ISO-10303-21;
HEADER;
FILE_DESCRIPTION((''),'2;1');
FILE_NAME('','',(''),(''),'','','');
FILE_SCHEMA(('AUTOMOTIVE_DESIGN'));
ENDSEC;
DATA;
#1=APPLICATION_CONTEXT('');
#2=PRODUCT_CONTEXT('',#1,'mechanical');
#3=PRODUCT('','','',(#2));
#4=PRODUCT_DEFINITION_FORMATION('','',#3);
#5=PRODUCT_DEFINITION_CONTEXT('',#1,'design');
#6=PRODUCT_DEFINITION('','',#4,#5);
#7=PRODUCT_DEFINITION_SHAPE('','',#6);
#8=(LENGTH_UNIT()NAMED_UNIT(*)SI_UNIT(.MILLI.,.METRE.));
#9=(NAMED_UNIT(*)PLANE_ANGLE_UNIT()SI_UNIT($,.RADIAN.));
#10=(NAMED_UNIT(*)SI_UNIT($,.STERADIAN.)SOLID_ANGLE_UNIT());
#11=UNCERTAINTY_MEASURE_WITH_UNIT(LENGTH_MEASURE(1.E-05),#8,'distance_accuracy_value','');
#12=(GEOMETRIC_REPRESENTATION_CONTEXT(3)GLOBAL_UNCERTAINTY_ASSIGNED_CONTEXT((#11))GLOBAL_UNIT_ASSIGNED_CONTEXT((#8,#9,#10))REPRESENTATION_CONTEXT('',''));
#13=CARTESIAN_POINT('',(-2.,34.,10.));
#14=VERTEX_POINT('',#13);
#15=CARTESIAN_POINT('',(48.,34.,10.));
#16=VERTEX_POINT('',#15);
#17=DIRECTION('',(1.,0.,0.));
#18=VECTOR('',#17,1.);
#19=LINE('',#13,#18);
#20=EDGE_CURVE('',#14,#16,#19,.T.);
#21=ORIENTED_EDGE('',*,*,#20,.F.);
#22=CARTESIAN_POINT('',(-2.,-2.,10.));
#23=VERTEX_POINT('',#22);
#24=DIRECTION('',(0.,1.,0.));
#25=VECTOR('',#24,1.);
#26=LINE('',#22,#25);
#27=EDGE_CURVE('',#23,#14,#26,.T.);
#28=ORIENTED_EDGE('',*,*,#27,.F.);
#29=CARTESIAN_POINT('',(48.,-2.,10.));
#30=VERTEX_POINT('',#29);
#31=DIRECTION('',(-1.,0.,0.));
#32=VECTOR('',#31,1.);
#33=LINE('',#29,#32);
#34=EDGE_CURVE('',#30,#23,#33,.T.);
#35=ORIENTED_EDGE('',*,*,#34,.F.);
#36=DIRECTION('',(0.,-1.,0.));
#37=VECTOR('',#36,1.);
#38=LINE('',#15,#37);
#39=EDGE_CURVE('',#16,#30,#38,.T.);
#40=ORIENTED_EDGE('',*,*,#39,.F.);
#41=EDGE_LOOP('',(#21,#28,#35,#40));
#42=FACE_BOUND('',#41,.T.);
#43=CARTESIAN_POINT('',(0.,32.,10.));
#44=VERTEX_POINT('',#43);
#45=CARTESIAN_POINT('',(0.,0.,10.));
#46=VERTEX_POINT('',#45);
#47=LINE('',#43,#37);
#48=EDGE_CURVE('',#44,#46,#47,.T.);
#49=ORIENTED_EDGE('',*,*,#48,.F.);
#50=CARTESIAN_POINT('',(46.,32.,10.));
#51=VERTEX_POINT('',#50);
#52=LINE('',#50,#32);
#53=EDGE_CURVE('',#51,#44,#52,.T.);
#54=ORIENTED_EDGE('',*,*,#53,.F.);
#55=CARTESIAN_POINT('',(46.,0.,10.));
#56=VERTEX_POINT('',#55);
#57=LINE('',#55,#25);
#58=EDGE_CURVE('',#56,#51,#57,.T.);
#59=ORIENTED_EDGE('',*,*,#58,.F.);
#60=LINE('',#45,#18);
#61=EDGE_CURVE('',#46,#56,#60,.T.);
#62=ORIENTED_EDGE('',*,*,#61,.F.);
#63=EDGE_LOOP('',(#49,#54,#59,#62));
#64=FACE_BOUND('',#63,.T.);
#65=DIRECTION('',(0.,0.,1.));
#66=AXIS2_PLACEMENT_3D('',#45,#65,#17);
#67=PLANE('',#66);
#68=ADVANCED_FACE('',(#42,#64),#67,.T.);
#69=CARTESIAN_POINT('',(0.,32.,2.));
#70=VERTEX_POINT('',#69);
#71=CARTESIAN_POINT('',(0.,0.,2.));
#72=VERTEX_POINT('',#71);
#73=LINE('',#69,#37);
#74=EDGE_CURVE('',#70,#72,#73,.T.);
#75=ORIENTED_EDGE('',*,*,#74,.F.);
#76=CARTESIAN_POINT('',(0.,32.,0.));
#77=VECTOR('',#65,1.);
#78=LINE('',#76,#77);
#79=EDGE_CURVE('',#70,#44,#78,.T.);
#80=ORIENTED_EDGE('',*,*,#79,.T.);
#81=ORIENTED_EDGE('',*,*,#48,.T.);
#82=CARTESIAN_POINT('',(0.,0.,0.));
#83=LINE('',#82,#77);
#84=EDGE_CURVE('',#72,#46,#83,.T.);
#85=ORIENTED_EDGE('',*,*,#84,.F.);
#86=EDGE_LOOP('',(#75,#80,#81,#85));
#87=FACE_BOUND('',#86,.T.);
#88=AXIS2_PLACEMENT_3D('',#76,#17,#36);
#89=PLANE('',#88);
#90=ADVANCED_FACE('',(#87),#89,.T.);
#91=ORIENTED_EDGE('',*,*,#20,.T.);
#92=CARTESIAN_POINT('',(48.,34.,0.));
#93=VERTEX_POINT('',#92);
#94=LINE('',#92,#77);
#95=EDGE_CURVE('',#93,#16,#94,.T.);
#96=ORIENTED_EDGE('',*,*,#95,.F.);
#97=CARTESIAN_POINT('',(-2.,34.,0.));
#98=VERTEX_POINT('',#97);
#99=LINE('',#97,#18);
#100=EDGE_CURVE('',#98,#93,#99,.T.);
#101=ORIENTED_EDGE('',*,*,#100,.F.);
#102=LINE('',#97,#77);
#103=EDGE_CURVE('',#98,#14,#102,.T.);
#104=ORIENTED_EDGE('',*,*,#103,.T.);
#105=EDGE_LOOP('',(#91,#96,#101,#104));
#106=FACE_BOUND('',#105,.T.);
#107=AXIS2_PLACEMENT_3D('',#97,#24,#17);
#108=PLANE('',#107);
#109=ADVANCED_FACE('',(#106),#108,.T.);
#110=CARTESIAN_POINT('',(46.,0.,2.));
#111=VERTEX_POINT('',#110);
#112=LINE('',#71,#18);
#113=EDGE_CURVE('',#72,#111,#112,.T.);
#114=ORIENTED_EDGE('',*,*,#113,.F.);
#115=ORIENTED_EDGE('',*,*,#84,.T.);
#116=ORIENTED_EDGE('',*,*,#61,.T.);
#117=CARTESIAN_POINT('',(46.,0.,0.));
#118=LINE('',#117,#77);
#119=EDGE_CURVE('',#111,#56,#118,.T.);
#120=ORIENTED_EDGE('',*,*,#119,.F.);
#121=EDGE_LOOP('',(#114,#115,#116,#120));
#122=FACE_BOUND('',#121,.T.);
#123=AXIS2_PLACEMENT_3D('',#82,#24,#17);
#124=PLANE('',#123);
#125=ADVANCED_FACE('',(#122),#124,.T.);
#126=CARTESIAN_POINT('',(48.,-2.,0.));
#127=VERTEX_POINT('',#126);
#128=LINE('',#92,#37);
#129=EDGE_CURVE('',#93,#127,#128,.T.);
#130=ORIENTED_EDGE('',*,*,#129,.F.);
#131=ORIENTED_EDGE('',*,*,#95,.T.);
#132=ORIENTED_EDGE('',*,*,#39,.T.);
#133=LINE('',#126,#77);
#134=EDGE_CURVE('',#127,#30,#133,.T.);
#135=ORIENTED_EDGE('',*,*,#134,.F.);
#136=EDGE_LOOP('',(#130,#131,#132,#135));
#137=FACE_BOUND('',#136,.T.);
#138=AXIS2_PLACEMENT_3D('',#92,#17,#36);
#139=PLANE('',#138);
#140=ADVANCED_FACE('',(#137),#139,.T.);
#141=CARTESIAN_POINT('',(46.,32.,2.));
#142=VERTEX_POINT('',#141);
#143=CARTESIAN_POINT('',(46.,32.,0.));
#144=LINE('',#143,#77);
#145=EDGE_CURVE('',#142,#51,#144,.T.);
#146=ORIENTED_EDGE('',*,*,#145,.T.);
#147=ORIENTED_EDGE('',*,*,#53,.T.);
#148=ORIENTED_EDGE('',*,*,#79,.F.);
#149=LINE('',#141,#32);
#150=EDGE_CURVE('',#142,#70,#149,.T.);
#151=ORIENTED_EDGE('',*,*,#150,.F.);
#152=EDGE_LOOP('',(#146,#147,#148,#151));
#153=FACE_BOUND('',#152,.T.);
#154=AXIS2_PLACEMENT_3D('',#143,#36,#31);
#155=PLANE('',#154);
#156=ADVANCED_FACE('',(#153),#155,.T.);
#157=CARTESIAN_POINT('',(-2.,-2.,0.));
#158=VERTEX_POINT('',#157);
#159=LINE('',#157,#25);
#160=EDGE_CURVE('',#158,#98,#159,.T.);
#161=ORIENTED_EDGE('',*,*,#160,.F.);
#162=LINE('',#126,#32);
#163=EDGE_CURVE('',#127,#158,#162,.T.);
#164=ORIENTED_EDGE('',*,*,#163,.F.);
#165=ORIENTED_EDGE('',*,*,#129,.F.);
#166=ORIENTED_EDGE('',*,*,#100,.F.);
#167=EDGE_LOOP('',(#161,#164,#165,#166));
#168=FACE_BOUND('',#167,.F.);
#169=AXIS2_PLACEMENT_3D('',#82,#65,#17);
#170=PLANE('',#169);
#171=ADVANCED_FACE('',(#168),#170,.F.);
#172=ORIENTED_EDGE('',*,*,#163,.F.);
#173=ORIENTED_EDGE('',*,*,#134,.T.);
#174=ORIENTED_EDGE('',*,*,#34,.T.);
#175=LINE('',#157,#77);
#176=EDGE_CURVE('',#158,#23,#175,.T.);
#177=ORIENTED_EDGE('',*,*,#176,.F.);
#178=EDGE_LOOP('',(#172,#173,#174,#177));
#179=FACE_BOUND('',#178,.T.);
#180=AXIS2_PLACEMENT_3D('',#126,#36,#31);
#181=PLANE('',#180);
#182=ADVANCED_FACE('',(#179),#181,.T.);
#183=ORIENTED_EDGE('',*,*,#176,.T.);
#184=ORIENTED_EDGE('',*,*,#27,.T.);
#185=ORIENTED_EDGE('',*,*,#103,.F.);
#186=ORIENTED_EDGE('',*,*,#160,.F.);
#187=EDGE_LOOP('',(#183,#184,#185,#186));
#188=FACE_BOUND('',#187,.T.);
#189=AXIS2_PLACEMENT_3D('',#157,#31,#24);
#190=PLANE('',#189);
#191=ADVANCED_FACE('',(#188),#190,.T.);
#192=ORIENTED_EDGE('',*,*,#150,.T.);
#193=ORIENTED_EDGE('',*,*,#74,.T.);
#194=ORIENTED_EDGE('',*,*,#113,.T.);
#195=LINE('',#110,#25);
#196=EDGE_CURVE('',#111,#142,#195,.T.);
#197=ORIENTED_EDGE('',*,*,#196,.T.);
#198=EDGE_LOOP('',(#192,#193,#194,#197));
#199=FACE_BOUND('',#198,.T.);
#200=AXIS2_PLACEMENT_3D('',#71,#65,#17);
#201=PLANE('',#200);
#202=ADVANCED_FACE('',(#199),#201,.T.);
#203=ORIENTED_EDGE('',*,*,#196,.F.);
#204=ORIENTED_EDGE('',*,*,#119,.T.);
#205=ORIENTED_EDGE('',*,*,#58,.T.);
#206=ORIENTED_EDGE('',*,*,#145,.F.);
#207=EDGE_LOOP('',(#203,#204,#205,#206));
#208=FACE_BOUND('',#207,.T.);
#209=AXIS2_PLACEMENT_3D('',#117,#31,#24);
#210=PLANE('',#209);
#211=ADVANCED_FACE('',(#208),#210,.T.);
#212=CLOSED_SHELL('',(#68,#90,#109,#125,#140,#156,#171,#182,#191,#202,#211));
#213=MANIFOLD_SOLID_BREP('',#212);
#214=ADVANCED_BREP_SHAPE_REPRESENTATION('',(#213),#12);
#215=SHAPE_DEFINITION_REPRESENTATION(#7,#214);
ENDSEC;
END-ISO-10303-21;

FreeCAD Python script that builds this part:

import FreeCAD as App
import Part
import Sketcher

V = App.Vector


def add_polygon(sketch, points):
    """Adds a closed chain of lines whose ends are joined by coincident constraints."""
    first, n = sketch.GeometryCount, len(points)
    for a, b in zip(points, points[1:] + points[:1]):
        sketch.addGeometry(Part.LineSegment(App.Vector(*a, 0), App.Vector(*b, 0)), False)
    for i in range(n):
        sketch.addConstraint(Sketcher.Constraint("Coincident", first + i, 2, first + (i + 1) % n, 1))

doc = App.newDocument("Part")
params = doc.addObject("Spreadsheet::Sheet", "Params")
for row, (alias, value) in enumerate([
    ("sketch1_width", "46 mm"),
    ("sketch1_height", "32 mm"),
    ("pad1_length", "2 mm"),
    ("sketch2_width", "46 mm"),
    ("sketch2_height", "32 mm"),
    ("pad2_length", "10 mm"),
], start=1):
    params.set(f"A{row}", alias)
    params.set(f"B{row}", "=" + value)
    params.setAlias(f"B{row}", alias)

body = doc.addObject("PartDesign::Body", "Body")

# Sketch on XY plane
sketch1 = doc.addObject("Sketcher::SketchObject", "Sketch")
body.addObject(sketch1)
sketch1.AttachmentSupport = (doc.XY_Plane, [""])
sketch1.MapMode = "FlatFace"
add_polygon(sketch1, [(0, 32), (0, 0), (46, 0), (46, 32)])  # lines 0-3
sketch1.addConstraint([
    Sketcher.Constraint("Vertical", 0),
    Sketcher.Constraint("Horizontal", 1),
    Sketcher.Constraint("Vertical", 2),
    Sketcher.Constraint("Horizontal", 3),
    Sketcher.Constraint("Coincident", 0, 2, -1, 1),
    Sketcher.Constraint("DistanceX", 1, 1, 1, 2, 46.0),
    Sketcher.Constraint("DistanceY", 0, 2, 0, 1, 32.0),
])
sketch1.setExpression("Constraints[9]", "Params.sketch1_width")
sketch1.setExpression("Constraints[10]", "Params.sketch1_height")
pad1 = doc.addObject("PartDesign::Pad", "Pad")
body.addObject(pad1)
pad1.Profile = sketch1
pad1.setExpression("Length", "Params.pad1_length")

# Sketch on XY plane
sketch2 = doc.addObject("Sketcher::SketchObject", "Sketch001")
body.addObject(sketch2)
sketch2.AttachmentSupport = (doc.XY_Plane, [""])
sketch2.MapMode = "FlatFace"
add_polygon(sketch2, [(48, 34), (-2, 34), (-2, -2), (48, -2)])  # lines 0-3
add_polygon(sketch2, [(46, 0), (0, 0), (0, 32), (46, 32)])  # lines 4-7
sketch2.addConstraint([
    Sketcher.Constraint("Horizontal", 0),
    Sketcher.Constraint("Vertical", 1),
    Sketcher.Constraint("Horizontal", 2),
    Sketcher.Constraint("Vertical", 3),
    Sketcher.Constraint("Horizontal", 4),
    Sketcher.Constraint("Vertical", 5),
    Sketcher.Constraint("Horizontal", 6),
    Sketcher.Constraint("Vertical", 7),
    Sketcher.Constraint("Coincident", 4, 2, -1, 1),
    Sketcher.Constraint("DistanceX", 4, 2, 4, 1, 46.0),
    Sketcher.Constraint("DistanceY", 5, 1, 5, 2, 32.0),
    Sketcher.Constraint("DistanceX", 0, 2, -1, 1, 2.0),
    Sketcher.Constraint("DistanceY", 1, 2, -1, 1, 2.0),
    Sketcher.Constraint("DistanceY", 5, 2, 0, 2, 2.0),
    Sketcher.Constraint("DistanceX", 6, 2, 3, 2, 2.0),
])
sketch2.setExpression("Constraints[17]", "Params.sketch2_width")
sketch2.setExpression("Constraints[18]", "Params.sketch2_height")
pad2 = doc.addObject("PartDesign::Pad", "Pad001")
body.addObject(pad2)
pad2.Profile = sketch2
pad2.setExpression("Length", "Params.pad2_length")

doc.recompute()
